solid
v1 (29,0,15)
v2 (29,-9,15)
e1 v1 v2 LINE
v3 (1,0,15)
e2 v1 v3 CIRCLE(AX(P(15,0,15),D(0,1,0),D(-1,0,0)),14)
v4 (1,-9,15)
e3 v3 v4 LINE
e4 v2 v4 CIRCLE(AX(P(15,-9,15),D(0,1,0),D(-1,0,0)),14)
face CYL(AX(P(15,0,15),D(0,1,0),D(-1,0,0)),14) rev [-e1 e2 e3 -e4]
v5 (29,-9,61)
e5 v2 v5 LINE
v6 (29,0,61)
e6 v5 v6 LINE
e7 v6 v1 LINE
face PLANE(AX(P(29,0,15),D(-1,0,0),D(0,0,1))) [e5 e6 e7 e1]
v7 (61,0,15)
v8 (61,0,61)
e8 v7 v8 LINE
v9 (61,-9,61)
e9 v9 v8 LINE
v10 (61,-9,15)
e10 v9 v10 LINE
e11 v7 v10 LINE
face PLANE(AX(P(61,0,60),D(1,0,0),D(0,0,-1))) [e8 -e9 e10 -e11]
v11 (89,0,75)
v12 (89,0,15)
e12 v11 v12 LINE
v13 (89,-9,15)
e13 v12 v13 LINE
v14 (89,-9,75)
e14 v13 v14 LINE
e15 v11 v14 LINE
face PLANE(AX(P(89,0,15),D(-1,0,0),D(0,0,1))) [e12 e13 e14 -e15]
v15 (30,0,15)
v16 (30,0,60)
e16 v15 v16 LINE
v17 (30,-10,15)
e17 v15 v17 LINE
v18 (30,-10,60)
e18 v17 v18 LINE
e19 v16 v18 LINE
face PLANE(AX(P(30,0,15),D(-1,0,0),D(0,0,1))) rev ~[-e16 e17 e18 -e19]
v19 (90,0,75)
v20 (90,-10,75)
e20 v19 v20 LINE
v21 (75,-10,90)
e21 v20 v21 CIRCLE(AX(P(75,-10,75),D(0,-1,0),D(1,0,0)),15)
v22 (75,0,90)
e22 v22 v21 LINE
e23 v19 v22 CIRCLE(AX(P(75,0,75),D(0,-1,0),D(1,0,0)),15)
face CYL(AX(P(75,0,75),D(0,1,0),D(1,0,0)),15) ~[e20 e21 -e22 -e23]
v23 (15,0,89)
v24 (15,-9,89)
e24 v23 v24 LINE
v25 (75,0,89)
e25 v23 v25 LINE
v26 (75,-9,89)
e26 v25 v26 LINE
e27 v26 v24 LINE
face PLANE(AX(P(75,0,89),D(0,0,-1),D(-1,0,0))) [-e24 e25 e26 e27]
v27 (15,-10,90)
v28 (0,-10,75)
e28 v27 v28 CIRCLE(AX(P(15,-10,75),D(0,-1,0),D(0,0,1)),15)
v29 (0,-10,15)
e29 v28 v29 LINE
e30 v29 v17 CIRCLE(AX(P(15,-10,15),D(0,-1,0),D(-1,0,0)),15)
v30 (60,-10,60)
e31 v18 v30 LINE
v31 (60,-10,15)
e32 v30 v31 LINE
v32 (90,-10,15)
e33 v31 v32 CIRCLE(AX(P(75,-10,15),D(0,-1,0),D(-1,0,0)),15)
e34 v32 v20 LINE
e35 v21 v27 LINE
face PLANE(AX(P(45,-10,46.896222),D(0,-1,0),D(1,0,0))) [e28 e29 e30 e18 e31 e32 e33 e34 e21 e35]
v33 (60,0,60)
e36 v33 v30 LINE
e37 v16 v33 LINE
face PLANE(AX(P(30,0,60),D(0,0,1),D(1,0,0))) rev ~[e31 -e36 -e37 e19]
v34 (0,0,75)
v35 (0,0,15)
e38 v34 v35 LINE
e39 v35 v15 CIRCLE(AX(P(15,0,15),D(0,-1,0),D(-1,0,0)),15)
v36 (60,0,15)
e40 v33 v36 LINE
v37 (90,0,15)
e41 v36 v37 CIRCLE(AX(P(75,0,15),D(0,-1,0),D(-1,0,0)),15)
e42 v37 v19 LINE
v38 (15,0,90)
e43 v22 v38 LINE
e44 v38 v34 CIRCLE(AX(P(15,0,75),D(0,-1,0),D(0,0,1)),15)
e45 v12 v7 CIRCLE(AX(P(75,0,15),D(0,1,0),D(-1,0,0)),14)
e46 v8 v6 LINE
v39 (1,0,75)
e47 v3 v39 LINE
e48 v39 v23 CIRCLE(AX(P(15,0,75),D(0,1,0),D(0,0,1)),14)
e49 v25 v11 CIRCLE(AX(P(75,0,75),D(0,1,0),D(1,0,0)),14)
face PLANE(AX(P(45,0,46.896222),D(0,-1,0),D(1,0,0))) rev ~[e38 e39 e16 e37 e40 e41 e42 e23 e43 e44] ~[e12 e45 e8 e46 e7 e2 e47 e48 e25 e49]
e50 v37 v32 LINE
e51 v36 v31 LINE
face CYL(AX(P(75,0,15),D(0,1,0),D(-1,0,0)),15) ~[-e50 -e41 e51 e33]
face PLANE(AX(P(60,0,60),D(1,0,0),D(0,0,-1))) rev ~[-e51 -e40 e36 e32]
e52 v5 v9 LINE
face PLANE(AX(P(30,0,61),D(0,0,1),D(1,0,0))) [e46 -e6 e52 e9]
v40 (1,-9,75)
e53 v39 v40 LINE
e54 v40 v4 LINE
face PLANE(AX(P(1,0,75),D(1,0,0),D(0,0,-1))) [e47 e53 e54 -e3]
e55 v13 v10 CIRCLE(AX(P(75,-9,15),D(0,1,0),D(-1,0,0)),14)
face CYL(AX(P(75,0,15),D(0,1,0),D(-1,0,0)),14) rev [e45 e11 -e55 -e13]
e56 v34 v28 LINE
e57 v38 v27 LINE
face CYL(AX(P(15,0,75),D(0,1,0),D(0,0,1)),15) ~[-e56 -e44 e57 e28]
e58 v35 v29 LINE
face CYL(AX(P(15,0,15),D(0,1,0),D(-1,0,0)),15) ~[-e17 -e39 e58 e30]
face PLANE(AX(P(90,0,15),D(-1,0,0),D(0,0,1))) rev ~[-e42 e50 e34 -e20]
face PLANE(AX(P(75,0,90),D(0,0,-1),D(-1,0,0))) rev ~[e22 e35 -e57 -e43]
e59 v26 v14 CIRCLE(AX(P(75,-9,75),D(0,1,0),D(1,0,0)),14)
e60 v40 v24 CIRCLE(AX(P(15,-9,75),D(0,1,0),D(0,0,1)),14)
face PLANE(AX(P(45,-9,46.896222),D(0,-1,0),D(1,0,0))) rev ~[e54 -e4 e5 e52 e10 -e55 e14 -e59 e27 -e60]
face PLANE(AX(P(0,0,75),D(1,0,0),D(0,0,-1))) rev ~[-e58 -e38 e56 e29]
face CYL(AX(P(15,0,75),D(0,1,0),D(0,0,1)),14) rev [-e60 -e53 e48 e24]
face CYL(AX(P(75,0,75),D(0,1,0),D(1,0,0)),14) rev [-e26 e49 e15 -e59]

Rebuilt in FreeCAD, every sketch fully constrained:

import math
import FreeCAD as App
import Part
import Sketcher

V = App.Vector


def faces_at(feature, points):
    """Names of the faces that lie closest to the given points."""
    faces = feature.Shape.Faces
    near = lambda p: min(range(len(faces)), key=lambda i: faces[i].distToShape(Part.Vertex(*p))[0])
    return sorted({f"Face{near(p) + 1}" for p in points})

doc = App.newDocument("Part")
body = doc.addObject("PartDesign::Body", "Body")

sketch1 = doc.addObject("Sketcher::SketchObject", "Sketch")
body.addObject(sketch1)
sketch1.AttachmentSupport = (doc.XZ_Plane, [""])
sketch1.MapMode = "FlatFace"
sketch1.addGeometry(Part.LineSegment(V(75, 90, 0), V(15, 90, 0)), False)
sketch1.addGeometry(Part.ArcOfCircle(Part.Circle(V(15, 75, 0), V(0, 0, 1), 15), math.radians(90), math.radians(180)), False)
sketch1.addGeometry(Part.LineSegment(V(0, 75, 0), V(0, 15, 0)), False)
sketch1.addGeometry(Part.ArcOfCircle(Part.Circle(V(15, 15, 0), V(0, 0, 1), 15), math.radians(180), math.radians(360)), False)
sketch1.addGeometry(Part.LineSegment(V(30, 15, 0), V(30, 60, 0)), False)
sketch1.addGeometry(Part.LineSegment(V(30, 60, 0), V(60, 60, 0)), False)
sketch1.addGeometry(Part.LineSegment(V(60, 60, 0), V(60, 15, 0)), False)
sketch1.addGeometry(Part.ArcOfCircle(Part.Circle(V(75, 15, 0), V(0, 0, 1), 15), math.radians(180), math.radians(360)), False)
sketch1.addGeometry(Part.LineSegment(V(90, 15, 0), V(90, 75, 0)), False)
sketch1.addGeometry(Part.ArcOfCircle(Part.Circle(V(75, 75, 0), V(0, 0, 1), 15), math.radians(0), math.radians(90)), False)
sketch1.addConstraint(Sketcher.Constraint("Tangent", 0, 2, 1, 1))
sketch1.addConstraint(Sketcher.Constraint("Tangent", 1, 2, 2, 1))
sketch1.addConstraint(Sketcher.Constraint("Tangent", 2, 2, 3, 1))
sketch1.addConstraint(Sketcher.Constraint("Tangent", 3, 2, 4, 1))
sketch1.addConstraint(Sketcher.Constraint("Coincident", 4, 2, 5, 1))
sketch1.addConstraint(Sketcher.Constraint("Coincident", 5, 2, 6, 1))
sketch1.addConstraint(Sketcher.Constraint("Tangent", 6, 2, 7, 1))
sketch1.addConstraint(Sketcher.Constraint("Tangent", 7, 2, 8, 1))
sketch1.addConstraint(Sketcher.Constraint("Tangent", 8, 2, 9, 1))
sketch1.addConstraint(Sketcher.Constraint("Tangent", 9, 2, 0, 1))
sketch1.addConstraint(Sketcher.Constraint("Horizontal", 0))
sketch1.addConstraint(Sketcher.Constraint("Vertical", 2))
sketch1.addConstraint(Sketcher.Constraint("Vertical", 4))
sketch1.addConstraint(Sketcher.Constraint("Horizontal", 5))
sketch1.addConstraint(Sketcher.Constraint("Vertical", 6))
sketch1.addConstraint(Sketcher.Constraint("Vertical", 8))
sketch1.addConstraint(Sketcher.Constraint("Equal", 1, 3))
sketch1.addConstraint(Sketcher.Constraint("Equal", 3, 7))
sketch1.addConstraint(Sketcher.Constraint("Equal", 7, 9))
sketch1.addConstraint(Sketcher.Constraint("PointOnObject", 1, 2, -2))
sketch1.addConstraint(Sketcher.Constraint("Horizontal", 3, 3, 7, 3))
sketch1.addConstraint(Sketcher.Constraint("Equal", 0, 2))
sketch1.addConstraint(Sketcher.Constraint("Radius", 1, 15.0))
sketch1.addConstraint(Sketcher.Constraint("DistanceX", 0, 2, 0, 1, 60.0))
sketch1.addConstraint(Sketcher.Constraint("DistanceY", 4, 1, 4, 2, 45.0))
sketch1.addConstraint(Sketcher.Constraint("DistanceY", -1, 1, 1, 3, 75.0))
pad1 = doc.addObject("PartDesign::Pad", "Pad")
body.addObject(pad1)
pad1.Profile = sketch1
pad1.Length = 10
doc.recompute()

thickness = doc.addObject("PartDesign::Thickness", "Thickness")
body.addObject(thickness)
thickness.Base = (pad1, faces_at(pad1, [(27, 0, 27)]))
thickness.Value = 1
thickness.Reversed = True
thickness.Join = "Intersection"

doc.recompute()
